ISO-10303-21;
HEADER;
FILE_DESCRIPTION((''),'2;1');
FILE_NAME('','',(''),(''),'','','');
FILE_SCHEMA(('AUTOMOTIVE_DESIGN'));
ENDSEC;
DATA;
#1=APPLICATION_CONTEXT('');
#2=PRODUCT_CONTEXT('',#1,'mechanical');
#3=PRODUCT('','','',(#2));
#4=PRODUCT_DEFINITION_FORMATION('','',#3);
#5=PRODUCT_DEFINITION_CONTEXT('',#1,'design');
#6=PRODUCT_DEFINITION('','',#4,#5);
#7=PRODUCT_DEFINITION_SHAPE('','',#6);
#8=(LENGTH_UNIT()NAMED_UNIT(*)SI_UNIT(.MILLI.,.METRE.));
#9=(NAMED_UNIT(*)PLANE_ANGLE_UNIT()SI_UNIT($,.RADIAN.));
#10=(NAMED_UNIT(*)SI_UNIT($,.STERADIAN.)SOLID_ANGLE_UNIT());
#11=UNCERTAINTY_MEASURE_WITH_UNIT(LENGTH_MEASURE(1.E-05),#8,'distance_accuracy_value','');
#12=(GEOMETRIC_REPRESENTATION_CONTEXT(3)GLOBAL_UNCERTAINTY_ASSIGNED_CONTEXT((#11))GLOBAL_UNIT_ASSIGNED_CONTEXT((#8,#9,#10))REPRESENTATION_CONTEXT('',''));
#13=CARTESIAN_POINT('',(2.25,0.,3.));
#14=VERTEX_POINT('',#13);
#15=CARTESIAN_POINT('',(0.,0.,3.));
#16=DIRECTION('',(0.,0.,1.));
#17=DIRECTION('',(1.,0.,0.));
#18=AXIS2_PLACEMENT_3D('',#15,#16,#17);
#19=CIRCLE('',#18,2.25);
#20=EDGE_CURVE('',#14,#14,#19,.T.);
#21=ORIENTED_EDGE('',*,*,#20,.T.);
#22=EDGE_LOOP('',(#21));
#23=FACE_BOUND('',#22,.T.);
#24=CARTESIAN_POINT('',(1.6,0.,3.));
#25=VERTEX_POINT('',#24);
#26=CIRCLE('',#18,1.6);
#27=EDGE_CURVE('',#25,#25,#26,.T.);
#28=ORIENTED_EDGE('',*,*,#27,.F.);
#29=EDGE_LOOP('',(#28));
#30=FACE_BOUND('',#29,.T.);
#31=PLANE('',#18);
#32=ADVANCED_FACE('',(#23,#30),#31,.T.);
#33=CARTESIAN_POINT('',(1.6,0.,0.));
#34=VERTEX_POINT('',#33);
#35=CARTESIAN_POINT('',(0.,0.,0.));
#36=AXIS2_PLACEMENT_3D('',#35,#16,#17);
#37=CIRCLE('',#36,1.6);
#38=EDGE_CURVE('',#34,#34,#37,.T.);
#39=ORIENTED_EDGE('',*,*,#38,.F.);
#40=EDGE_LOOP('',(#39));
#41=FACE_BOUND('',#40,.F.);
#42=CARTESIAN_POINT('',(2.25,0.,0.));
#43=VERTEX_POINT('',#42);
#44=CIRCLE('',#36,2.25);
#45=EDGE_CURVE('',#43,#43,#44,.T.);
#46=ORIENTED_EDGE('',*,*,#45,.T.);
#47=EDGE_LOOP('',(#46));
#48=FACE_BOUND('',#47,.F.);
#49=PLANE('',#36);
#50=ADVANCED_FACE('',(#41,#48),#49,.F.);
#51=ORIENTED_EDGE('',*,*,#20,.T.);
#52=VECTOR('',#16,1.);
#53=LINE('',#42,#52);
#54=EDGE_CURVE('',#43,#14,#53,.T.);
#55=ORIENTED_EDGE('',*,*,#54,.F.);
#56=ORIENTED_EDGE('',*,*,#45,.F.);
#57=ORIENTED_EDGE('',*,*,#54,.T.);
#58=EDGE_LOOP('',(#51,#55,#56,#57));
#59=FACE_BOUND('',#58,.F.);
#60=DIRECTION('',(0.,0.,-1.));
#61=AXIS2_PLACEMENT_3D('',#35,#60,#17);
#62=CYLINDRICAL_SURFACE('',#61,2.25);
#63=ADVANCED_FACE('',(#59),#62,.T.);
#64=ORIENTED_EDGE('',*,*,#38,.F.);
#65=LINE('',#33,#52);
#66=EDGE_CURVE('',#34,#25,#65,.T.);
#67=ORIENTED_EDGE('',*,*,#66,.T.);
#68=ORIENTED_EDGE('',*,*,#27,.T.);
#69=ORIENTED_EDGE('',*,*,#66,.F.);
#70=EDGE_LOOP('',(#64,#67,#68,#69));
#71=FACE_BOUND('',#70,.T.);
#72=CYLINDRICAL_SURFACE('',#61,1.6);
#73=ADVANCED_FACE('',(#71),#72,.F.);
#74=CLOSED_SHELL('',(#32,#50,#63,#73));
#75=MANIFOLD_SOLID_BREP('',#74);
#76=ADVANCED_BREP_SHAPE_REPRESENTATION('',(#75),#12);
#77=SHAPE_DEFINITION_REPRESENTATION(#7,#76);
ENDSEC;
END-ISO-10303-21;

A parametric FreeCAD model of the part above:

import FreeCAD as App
import Part
import Sketcher

V = App.Vector

doc = App.newDocument("Part")
params = doc.addObject("Spreadsheet::Sheet", "Params")
for row, (alias, value) in enumerate([
    ("sketch1_diameter", "4.5 mm"),
    ("sketch1_diameter2", "3.2 mm"),
    ("pad1_length", "3 mm"),
], start=1):
    params.set(f"A{row}", alias)
    params.set(f"B{row}", "=" + value)
    params.setAlias(f"B{row}", alias)

body = doc.addObject("PartDesign::Body", "Body")

sketch1 = body.newObject("Sketcher::SketchObject", "Sketch")
sketch1.AttachmentSupport = (doc.getObject("XY_Plane"), [""])
sketch1.MapMode = "FlatFace"
sketch1.addGeometry([
    Part.Circle(V(0, 0, 0), V(0, 0, 1), 2.2),
    Part.Circle(V(0, 0, 0), V(0, 0, 1), 1.6),
], False)
sketch1.addConstraint([
    Sketcher.Constraint("Coincident", 0, 3, -1, 1),
    Sketcher.Constraint("Coincident", 1, 3, -1, 1),
    Sketcher.Constraint("Diameter", 0, 4.5),
    Sketcher.Constraint("Diameter", 1, 3.2),
])
sketch1.setExpression("Constraints[2]", "Params.sketch1_diameter")
sketch1.setExpression("Constraints[3]", "Params.sketch1_diameter2")
pad1 = body.newObject("PartDesign::Pad", "Pad")
pad1.Profile = sketch1
pad1.setExpression("Length", "Params.pad1_length")

doc.recompute()
